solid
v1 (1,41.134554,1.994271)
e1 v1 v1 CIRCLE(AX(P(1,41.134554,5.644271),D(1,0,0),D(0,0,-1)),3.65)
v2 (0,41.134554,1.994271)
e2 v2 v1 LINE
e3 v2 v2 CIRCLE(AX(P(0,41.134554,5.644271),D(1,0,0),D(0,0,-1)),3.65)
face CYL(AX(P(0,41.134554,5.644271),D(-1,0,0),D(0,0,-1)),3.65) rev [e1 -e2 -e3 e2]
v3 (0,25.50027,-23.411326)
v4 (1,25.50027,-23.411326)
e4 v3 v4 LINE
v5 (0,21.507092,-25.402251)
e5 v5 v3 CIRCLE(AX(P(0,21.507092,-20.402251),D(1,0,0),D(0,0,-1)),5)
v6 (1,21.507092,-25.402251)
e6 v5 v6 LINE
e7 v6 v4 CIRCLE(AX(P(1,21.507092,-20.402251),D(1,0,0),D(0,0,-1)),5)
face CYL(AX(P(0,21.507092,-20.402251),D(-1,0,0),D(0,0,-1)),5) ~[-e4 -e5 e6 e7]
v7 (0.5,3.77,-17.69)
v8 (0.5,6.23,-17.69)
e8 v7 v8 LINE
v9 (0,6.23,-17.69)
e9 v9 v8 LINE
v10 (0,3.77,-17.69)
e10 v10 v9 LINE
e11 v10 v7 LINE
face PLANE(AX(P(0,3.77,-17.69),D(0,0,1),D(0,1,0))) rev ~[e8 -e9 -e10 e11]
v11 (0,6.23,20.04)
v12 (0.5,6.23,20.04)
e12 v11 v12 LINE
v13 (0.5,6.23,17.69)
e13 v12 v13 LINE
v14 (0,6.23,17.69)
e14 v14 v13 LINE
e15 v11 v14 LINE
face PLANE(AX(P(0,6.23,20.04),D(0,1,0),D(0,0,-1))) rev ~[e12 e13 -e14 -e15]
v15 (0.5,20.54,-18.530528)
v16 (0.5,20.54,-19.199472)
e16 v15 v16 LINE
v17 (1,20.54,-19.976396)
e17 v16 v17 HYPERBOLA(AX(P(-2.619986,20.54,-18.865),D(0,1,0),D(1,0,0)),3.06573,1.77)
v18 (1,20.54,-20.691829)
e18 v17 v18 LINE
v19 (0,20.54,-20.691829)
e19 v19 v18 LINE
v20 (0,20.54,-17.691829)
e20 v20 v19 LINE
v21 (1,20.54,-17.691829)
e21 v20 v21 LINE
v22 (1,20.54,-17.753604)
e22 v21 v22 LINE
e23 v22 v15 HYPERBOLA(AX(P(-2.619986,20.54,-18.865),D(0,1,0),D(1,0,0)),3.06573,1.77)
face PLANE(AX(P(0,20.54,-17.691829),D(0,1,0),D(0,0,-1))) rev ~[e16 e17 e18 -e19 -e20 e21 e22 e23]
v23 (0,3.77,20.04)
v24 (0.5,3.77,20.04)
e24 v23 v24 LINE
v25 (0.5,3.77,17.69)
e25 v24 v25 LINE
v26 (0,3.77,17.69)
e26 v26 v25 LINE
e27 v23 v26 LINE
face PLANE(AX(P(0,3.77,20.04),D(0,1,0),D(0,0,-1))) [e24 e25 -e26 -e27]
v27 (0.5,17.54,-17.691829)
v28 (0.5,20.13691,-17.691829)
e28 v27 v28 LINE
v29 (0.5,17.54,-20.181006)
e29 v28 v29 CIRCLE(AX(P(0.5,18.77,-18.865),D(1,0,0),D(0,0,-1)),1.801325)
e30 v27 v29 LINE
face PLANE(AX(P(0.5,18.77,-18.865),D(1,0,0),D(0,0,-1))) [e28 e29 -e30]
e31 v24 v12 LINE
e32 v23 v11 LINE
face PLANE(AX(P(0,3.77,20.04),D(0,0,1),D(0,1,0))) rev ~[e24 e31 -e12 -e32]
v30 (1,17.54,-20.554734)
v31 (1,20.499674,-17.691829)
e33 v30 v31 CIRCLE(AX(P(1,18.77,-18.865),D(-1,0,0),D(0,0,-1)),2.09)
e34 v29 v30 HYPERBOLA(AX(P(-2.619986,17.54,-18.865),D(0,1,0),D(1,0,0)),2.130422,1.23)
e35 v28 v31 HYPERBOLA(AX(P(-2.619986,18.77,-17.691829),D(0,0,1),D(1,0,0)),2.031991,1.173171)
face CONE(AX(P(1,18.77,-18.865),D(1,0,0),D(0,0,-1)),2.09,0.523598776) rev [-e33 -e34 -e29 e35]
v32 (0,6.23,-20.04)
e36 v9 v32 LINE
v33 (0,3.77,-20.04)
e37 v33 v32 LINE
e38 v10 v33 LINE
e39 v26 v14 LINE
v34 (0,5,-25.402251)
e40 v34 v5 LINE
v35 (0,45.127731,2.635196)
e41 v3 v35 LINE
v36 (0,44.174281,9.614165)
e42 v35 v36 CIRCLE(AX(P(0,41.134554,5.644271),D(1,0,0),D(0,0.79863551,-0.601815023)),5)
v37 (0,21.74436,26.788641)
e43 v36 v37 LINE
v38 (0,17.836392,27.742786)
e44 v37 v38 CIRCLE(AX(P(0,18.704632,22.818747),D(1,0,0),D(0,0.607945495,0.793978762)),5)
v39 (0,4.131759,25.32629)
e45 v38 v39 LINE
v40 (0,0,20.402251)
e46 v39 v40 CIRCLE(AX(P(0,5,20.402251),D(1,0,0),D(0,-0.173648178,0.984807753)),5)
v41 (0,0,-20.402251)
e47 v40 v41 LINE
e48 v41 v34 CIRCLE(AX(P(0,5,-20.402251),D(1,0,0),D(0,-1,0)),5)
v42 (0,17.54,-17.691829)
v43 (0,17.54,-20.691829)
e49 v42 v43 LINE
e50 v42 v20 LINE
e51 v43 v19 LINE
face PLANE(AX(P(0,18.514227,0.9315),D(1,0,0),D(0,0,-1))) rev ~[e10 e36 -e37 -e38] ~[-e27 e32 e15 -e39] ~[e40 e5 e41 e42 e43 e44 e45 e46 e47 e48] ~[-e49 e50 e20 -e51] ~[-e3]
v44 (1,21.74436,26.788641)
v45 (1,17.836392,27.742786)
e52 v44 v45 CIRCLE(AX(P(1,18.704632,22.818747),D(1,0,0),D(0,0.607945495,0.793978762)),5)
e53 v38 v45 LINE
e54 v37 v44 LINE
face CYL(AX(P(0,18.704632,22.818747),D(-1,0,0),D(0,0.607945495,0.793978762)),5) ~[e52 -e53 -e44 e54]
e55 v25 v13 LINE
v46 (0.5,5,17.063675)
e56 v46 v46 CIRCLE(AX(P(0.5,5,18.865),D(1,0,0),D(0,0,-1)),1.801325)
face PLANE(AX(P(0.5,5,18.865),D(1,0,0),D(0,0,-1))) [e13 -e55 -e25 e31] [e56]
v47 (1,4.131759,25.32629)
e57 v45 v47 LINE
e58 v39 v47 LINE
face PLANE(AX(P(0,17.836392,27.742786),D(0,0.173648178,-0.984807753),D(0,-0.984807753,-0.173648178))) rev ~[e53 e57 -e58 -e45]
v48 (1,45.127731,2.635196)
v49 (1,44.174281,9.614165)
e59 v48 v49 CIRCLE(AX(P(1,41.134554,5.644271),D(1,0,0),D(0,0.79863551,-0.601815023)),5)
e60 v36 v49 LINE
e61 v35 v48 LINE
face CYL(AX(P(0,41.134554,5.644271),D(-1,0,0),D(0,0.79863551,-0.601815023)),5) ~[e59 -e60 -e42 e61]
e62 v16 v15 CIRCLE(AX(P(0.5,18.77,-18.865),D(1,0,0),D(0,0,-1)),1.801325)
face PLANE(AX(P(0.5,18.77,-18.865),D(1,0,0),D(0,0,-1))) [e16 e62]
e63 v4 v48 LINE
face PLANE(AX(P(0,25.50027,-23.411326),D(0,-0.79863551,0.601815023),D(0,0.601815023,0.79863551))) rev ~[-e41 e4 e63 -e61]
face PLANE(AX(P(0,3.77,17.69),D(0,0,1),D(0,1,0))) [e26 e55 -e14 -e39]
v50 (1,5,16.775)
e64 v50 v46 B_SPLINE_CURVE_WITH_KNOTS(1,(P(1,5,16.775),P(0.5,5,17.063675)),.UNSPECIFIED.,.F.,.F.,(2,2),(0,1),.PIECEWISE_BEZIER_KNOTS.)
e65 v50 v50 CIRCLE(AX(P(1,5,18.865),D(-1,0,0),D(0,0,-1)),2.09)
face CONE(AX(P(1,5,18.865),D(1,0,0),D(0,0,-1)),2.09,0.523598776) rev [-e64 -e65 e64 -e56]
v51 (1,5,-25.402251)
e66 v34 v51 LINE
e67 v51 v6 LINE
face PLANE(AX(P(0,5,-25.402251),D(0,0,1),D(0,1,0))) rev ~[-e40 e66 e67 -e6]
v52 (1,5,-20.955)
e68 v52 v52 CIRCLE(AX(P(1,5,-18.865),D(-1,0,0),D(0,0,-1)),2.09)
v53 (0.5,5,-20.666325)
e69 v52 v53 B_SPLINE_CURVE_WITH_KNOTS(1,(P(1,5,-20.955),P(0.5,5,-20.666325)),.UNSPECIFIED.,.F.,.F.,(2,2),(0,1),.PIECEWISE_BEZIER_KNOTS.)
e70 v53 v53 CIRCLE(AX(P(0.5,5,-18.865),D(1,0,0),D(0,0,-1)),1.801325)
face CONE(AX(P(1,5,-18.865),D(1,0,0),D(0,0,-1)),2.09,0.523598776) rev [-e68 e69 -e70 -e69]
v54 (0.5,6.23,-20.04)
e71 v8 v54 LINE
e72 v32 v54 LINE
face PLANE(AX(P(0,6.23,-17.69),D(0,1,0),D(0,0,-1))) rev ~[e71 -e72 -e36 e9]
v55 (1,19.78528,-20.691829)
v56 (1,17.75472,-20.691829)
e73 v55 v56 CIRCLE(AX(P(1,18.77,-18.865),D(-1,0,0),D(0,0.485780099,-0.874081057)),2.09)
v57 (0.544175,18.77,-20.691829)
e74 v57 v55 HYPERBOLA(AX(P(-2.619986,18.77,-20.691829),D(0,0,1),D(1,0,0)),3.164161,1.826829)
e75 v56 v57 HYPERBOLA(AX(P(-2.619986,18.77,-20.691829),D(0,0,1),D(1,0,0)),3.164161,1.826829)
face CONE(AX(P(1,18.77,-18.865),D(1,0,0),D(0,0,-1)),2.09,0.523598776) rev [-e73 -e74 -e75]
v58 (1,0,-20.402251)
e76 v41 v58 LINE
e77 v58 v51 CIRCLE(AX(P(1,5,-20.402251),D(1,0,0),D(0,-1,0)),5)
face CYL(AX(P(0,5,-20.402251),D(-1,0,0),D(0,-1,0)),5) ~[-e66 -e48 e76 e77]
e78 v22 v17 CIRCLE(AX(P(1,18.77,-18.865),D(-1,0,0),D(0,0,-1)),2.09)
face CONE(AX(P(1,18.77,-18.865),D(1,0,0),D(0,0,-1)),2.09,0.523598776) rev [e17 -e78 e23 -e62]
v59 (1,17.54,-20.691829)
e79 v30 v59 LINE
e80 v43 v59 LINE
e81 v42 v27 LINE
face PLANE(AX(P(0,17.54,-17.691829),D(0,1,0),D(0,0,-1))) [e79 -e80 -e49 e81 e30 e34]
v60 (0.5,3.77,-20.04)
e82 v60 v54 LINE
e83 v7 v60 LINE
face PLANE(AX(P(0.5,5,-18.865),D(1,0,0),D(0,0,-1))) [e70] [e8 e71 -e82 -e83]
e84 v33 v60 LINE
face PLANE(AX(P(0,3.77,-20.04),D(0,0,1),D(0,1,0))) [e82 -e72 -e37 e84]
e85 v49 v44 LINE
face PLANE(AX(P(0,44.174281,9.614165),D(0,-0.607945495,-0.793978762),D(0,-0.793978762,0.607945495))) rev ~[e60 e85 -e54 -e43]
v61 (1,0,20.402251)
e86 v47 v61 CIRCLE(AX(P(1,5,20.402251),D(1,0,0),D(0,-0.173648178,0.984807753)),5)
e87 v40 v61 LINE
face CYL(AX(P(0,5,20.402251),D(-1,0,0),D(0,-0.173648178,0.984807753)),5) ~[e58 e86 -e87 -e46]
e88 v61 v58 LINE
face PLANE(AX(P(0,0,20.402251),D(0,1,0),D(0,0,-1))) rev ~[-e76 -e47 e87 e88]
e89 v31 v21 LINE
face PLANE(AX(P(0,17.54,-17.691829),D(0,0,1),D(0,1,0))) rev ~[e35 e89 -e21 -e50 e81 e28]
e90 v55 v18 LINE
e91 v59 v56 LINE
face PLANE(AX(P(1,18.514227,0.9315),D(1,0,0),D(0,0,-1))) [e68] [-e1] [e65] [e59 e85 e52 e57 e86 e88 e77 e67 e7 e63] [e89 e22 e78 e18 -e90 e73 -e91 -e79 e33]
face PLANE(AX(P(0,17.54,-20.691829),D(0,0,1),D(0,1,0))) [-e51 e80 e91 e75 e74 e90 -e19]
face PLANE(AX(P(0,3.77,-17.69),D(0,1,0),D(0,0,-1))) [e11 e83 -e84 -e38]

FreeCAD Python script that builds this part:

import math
import FreeCAD as App
import Part
import Sketcher
Q = App.Units.Quantity


def add_polygon(sketch, points):
    """Adds a closed chain of lines whose ends are joined by coincident constraints."""
    first, n = sketch.GeometryCount, len(points)
    for a, b in zip(points, points[1:] + points[:1]):
        sketch.addGeometry(Part.LineSegment(App.Vector(*a, 0), App.Vector(*b, 0)), False)
    for i in range(n):
        sketch.addConstraint(Sketcher.Constraint("Coincident", first + i, 2, first + (i + 1) % n, 1))

doc = App.newDocument("Part")
body = doc.addObject("PartDesign::Body", "Body")

sketch1 = doc.addObject("Sketcher::SketchObject", "Sketch")
body.addObject(sketch1)
sketch1.AttachmentSupport = (doc.YZ_Plane, [""])
sketch1.MapMode = "FlatFace"
sketch1.addGeometry(Part.LineSegment(App.Vector(0, 20.4, 0), App.Vector(0, -20.4, 0)), False)
sketch1.addGeometry(Part.ArcOfCircle(Part.Circle(App.Vector(5, -20.4, 0), App.Vector(0, 0, 1), 5), math.radians(180), math.radians(270)), False)
sketch1.addGeometry(Part.LineSegment(App.Vector(5, -25.4, 0), App.Vector(21.5, -25.4, 0)), False)
sketch1.addGeometry(Part.ArcOfCircle(Part.Circle(App.Vector(21.5, -20.4, 0), App.Vector(0, 0, 1), 5), math.radians(-90), math.radians(-37)), False)
sketch1.addGeometry(Part.LineSegment(App.Vector(25.5, -23.4, 0), App.Vector(45.1, 2.6, 0)), False)
sketch1.addGeometry(Part.ArcOfCircle(Part.Circle(App.Vector(41.1, 5.6, 0), App.Vector(0, 0, 1), 5), math.radians(-37), math.radians(53)), False)
sketch1.addGeometry(Part.LineSegment(App.Vector(44.2, 9.6, 0), App.Vector(21.7, 26.8, 0)), False)
sketch1.addGeometry(Part.ArcOfCircle(Part.Circle(App.Vector(18.7, 22.8, 0), App.Vector(0, 0, 1), 5), math.radians(53), math.radians(100)), False)
sketch1.addGeometry(Part.LineSegment(App.Vector(17.8, 27.7, 0), App.Vector(4.1, 25.3, 0)), False)
sketch1.addGeometry(Part.ArcOfCircle(Part.Circle(App.Vector(5, 20.4, 0), App.Vector(0, 0, 1), 5), math.radians(100), math.radians(180)), False)
add_polygon(sketch1, [(3.8, 17.7), (3.8, 20), (6.2, 20), (6.2, 17.7)])
add_polygon(sketch1, [(3.8, -20), (3.8, -17.7), (6.2, -17.7), (6.2, -20)])
add_polygon(sketch1, [(17.5, -20.7), (17.5, -17.7), (20.5, -17.7), (20.5, -20.7)])
sketch1.addGeometry(Part.Circle(App.Vector(41.1, 5.6, 0), App.Vector(0, 0, 1), 3.6), False)
sketch1.addConstraint([
    Sketcher.Constraint("Tangent", 0, 2, 1, 1),
    Sketcher.Constraint("Tangent", 1, 2, 2, 1),
    Sketcher.Constraint("Tangent", 2, 2, 3, 1),
    Sketcher.Constraint("Tangent", 3, 2, 4, 1),
    Sketcher.Constraint("Tangent", 4, 2, 5, 1),
    Sketcher.Constraint("Tangent", 5, 2, 6, 1),
    Sketcher.Constraint("Tangent", 6, 2, 7, 1),
    Sketcher.Constraint("Tangent", 7, 2, 8, 1),
    Sketcher.Constraint("Tangent", 8, 2, 9, 1),
    Sketcher.Constraint("Tangent", 9, 2, 0, 1),
    Sketcher.Constraint("Vertical", 0),
    Sketcher.Constraint("Horizontal", 2),
    Sketcher.Constraint("Vertical", 10),
    Sketcher.Constraint("Horizontal", 11),
    Sketcher.Constraint("Vertical", 12),
    Sketcher.Constraint("Horizontal", 13),
    Sketcher.Constraint("Vertical", 14),
    Sketcher.Constraint("Horizontal", 15),
    Sketcher.Constraint("Vertical", 16),
    Sketcher.Constraint("Horizontal", 17),
    Sketcher.Constraint("Vertical", 18),
    Sketcher.Constraint("Horizontal", 19),
    Sketcher.Constraint("Vertical", 20),
    Sketcher.Constraint("Horizontal", 21),
    Sketcher.Constraint("Coincident", 22, 3, 5, 3),
    Sketcher.Constraint("Equal", 1, 3),
    Sketcher.Constraint("Equal", 3, 5),
    Sketcher.Constraint("Equal", 5, 7),
    Sketcher.Constraint("Equal", 7, 9),
    Sketcher.Constraint("Symmetric", 0, 2, 9, 2, -1, 1),
    Sketcher.Constraint("Symmetric", 13, 2, 14, 2, -1),
    Sketcher.Constraint("Symmetric", 11, 2, 16, 2, -1),
    Sketcher.Constraint("Equal", 21, 18),
    Sketcher.Constraint("Radius", 1, Q("5 mm")),
    Sketcher.Constraint("Diameter", 22, Q("7.3 mm")),
    Sketcher.Constraint("DistanceX", 19, 1, 19, 2, Q("3 mm")),
    Sketcher.Constraint("Angle", 4, Q("53 deg")),
    Sketcher.Constraint("Angle", 8, Q("-170 deg")),
    Sketcher.Constraint("DistanceX", 11, 1, 11, 2, Q("2.46 mm")),
    Sketcher.Constraint("DistanceY", 10, 1, 10, 2, Q("2.35 mm")),
    Sketcher.Constraint("DistanceX", -1, 1, 10, 2, Q("3.77 mm")),
    Sketcher.Constraint("DistanceY", -1, 1, 10, 2, Q("20.04 mm")),
    Sketcher.Constraint("DistanceX", -1, 1, 18, 2, Q("17.54 mm")),
    Sketcher.Constraint("DistanceY", 0, 2, 0, 1, Q("40.804502 mm")),
    Sketcher.Constraint("DistanceY", 3, 3, 7, 3, Q("43.220998 mm")),
    Sketcher.Constraint("DistanceX", 2, 1, 2, 2, Q("16.507092 mm")),
    Sketcher.Constraint("DistanceX", 7, 3, 4, 2, Q("26.423099 mm")),
    Sketcher.Constraint("DistanceY", 18, 2, -1, 1, Q("17.691829 mm")),
])
pad1 = doc.addObject("PartDesign::Pad", "Pad")
body.addObject(pad1)
pad1.Profile = sketch1
pad1.Length = 1

sketch2 = doc.addObject("Sketcher::SketchObject", "Sketch001")
body.addObject(sketch2)
sketch2.AttachmentSupport = (doc.YZ_Plane, [""])
sketch2.MapMode = "FlatFace"
sketch2.AttachmentOffset = App.Placement(App.Vector(0, 0, 1), App.Rotation())
sketch2.addGeometry([
    Part.Circle(App.Vector(5, 18.9, 0), App.Vector(0, 0, 1), 2.1),
    Part.Circle(App.Vector(5, -18.9, 0), App.Vector(0, 0, 1), 2.1),
    Part.Circle(App.Vector(18.8, -18.9, 0), App.Vector(0, 0, 1), 2.1),
], False)
sketch2.addConstraint([
    Sketcher.Constraint("Equal", 0, 1),
    Sketcher.Constraint("Equal", 1, 2),
    Sketcher.Constraint("Symmetric", 0, 3, 1, 3, -1),
    Sketcher.Constraint("Horizontal", 1, 3, 2, 3),
    Sketcher.Constraint("Diameter", 0, Q("4.18 mm")),
    Sketcher.Constraint("DistanceX", -1, 1, 0, 3, Q("5 mm")),
    Sketcher.Constraint("DistanceX", -1, 1, 2, 3, Q("18.77 mm")),
    Sketcher.Constraint("DistanceY", 1, 3, 0, 3, Q("37.73 mm")),
])
pocket1 = doc.addObject("PartDesign::Pocket", "Pocket")
body.addObject(pocket1)
pocket1.Profile = sketch2
pocket1.Length = 0.5
pocket1.TaperAngle = -30

doc.recompute()
